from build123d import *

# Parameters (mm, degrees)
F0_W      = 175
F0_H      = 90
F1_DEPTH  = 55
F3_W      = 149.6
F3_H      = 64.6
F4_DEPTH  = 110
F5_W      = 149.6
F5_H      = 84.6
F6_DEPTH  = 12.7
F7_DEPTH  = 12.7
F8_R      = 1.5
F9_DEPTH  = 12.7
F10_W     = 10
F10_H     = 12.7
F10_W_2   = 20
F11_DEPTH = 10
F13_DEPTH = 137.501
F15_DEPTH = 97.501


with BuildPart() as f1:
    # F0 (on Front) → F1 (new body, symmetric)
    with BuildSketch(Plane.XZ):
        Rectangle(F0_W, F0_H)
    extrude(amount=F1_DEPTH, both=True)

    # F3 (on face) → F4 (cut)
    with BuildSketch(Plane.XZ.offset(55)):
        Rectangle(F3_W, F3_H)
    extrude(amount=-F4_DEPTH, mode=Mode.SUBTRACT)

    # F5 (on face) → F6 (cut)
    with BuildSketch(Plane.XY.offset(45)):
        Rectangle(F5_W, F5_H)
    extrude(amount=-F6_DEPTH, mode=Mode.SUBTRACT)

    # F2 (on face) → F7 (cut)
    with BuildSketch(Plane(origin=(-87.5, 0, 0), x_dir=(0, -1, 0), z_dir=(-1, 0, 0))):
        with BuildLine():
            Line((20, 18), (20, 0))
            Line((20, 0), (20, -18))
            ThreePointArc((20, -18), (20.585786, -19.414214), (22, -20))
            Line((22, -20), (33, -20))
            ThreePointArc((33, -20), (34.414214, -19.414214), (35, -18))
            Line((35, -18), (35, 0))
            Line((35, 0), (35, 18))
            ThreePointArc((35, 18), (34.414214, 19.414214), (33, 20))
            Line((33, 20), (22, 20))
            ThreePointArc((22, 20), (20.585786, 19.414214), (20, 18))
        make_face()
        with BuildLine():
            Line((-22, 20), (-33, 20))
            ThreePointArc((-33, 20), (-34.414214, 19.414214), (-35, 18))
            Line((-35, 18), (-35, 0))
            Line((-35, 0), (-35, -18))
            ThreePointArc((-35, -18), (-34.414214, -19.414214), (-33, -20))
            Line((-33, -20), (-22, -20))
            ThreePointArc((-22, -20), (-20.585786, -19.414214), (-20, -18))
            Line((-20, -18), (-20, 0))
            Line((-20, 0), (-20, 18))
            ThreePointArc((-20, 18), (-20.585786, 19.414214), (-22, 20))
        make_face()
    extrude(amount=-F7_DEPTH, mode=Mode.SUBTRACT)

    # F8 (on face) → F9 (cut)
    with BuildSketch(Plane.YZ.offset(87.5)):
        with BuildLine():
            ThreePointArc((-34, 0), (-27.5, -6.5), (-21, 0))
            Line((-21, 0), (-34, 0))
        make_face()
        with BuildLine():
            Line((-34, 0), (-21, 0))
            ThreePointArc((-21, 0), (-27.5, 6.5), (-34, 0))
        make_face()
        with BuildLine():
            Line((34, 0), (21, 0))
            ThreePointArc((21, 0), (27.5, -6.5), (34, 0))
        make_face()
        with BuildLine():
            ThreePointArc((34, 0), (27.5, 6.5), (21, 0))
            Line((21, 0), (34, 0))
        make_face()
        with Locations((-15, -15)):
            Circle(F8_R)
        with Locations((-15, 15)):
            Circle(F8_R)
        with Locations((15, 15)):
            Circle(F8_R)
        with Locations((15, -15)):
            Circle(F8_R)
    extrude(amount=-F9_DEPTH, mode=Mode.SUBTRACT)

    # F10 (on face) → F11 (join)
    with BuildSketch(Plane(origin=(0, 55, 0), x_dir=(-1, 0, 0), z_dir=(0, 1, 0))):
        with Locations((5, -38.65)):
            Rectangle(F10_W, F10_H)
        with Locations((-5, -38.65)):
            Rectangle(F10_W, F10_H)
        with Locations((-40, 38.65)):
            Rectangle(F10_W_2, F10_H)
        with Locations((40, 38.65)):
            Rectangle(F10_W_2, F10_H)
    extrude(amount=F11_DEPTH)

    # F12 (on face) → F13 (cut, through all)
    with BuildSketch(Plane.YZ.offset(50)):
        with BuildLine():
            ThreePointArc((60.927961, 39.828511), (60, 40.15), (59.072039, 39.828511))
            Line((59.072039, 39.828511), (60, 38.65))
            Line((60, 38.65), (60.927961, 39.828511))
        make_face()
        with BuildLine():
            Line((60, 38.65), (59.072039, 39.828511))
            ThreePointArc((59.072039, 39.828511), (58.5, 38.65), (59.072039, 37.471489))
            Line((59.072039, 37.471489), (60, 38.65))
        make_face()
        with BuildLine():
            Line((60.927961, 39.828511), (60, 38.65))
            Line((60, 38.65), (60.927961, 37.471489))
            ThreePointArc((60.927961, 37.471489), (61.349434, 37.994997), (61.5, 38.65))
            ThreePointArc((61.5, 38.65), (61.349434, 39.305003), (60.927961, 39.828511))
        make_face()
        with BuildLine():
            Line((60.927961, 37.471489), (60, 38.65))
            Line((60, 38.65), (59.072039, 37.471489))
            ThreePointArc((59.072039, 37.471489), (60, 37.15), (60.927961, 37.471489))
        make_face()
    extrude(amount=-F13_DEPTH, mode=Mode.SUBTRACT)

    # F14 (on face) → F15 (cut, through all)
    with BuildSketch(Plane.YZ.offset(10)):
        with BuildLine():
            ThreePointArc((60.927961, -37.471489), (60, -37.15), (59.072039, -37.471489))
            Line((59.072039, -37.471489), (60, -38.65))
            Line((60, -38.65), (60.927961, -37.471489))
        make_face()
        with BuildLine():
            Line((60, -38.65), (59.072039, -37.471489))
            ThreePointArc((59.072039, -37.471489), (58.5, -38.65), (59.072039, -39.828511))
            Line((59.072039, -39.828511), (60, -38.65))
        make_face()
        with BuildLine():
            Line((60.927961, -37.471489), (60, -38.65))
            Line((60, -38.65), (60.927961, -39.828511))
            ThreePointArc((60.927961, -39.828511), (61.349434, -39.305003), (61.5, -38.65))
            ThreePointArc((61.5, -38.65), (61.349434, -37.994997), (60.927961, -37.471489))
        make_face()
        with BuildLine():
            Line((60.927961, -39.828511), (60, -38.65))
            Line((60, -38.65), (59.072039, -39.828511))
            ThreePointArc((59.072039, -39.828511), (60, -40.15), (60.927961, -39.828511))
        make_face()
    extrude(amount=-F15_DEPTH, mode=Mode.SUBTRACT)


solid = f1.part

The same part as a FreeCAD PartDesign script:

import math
import FreeCAD as App
import Part
import Sketcher

V = App.Vector


def add_polygon(sketch, points):
    """Adds a closed chain of lines whose ends are joined by coincident constraints."""
    first, n = sketch.GeometryCount, len(points)
    for a, b in zip(points, points[1:] + points[:1]):
        sketch.addGeometry(Part.LineSegment(App.Vector(*a, 0), App.Vector(*b, 0)), False)
    for i in range(n):
        sketch.addConstraint(Sketcher.Constraint("Coincident", first + i, 2, first + (i + 1) % n, 1))

doc = App.newDocument("Part")
body = doc.addObject("PartDesign::Body", "Body")

sketch1 = body.newObject("Sketcher::SketchObject", "Sketch")
sketch1.AttachmentSupport = (doc.getObject("XZ_Plane"), [""])
sketch1.MapMode = "FlatFace"
add_polygon(sketch1, [(-88, 45), (-88, -45), (88, -45), (88, 45)])
sketch1.addConstraint([
    Sketcher.Constraint("Vertical", 0),
    Sketcher.Constraint("Horizontal", 1),
    Sketcher.Constraint("Vertical", 2),
    Sketcher.Constraint("Horizontal", 3),
    Sketcher.Constraint("Symmetric", 0, 2, 2, 2, -1, 1),
    Sketcher.Constraint("DistanceX", 1, 1, 1, 2, 175.0),
    Sketcher.Constraint("DistanceY", 0, 2, 0, 1, 90.0),
])
pad1 = body.newObject("PartDesign::Pad", "Pad")
pad1.Profile = sketch1
pad1.Length = 110
pad1.Midplane = True

sketch2 = body.newObject("Sketcher::SketchObject", "Sketch001")
sketch2.AttachmentSupport = (doc.getObject("XZ_Plane"), [""])
sketch2.MapMode = "FlatFace"
sketch2.AttachmentOffset = App.Placement(V(0, 0, 55), App.Rotation())
add_polygon(sketch2, [(-75, 32), (-75, -32), (75, -32), (75, 32)])
sketch2.addConstraint([
    Sketcher.Constraint("Vertical", 0),
    Sketcher.Constraint("Horizontal", 1),
    Sketcher.Constraint("Vertical", 2),
    Sketcher.Constraint("Horizontal", 3),
    Sketcher.Constraint("Symmetric", 0, 2, 2, 2, -1, 1),
    Sketcher.Constraint("DistanceX", 1, 1, 1, 2, 149.6),
    Sketcher.Constraint("DistanceY", 0, 2, 0, 1, 64.6),
])
pocket1 = body.newObject("PartDesign::Pocket", "Pocket")
pocket1.Profile = sketch2
pocket1.Length = 110

sketch3 = body.newObject("Sketcher::SketchObject", "Sketch002")
sketch3.AttachmentSupport = (doc.getObject("XY_Plane"), [""])
sketch3.MapMode = "FlatFace"
sketch3.AttachmentOffset = App.Placement(V(0, 0, 45), App.Rotation())
add_polygon(sketch3, [(-75, 42), (-75, -42), (75, -42), (75, 42)])
sketch3.addConstraint([
    Sketcher.Constraint("Vertical", 0),
    Sketcher.Constraint("Horizontal", 1),
    Sketcher.Constraint("Vertical", 2),
    Sketcher.Constraint("Horizontal", 3),
    Sketcher.Constraint("Symmetric", 0, 2, 2, 2, -1, 1),
    Sketcher.Constraint("DistanceX", 1, 1, 1, 2, 149.6),
    Sketcher.Constraint("DistanceY", 0, 2, 0, 1, 84.6),
])
pocket2 = body.newObject("PartDesign::Pocket", "Pocket001")
pocket2.Profile = sketch3
pocket2.Length = 12.7

sketch4 = body.newObject("Sketcher::SketchObject", "Sketch003")
sketch4.AttachmentSupport = (doc.getObject("YZ_Plane"), [""])
sketch4.MapMode = "FlatFace"
sketch4.AttachmentOffset = App.Placement(V(0, 0, -87.5), App.Rotation())
sketch4.addGeometry([
    Part.LineSegment(V(-20, 18, 0), V(-20, -18, 0)),
    Part.ArcOfCircle(Part.Circle(V(-22, -18, 0), V(0, 0, 1), 2), math.radians(-90), math.radians(0)),
    Part.LineSegment(V(-22, -20, 0), V(-33, -20, 0)),
    Part.ArcOfCircle(Part.Circle(V(-33, -18, 0), V(0, 0, 1), 2), math.radians(180), math.radians(270)),
    Part.LineSegment(V(-35, -18, 0), V(-35, 18, 0)),
    Part.ArcOfCircle(Part.Circle(V(-33, 18, 0), V(0, 0, 1), 2), math.radians(90), math.radians(180)),
    Part.LineSegment(V(-33, 20, 0), V(-22, 20, 0)),
    Part.ArcOfCircle(Part.Circle(V(-22, 18, 0), V(0, 0, 1), 2), math.radians(0), math.radians(90)),
    Part.LineSegment(V(22, 20, 0), V(33, 20, 0)),
    Part.ArcOfCircle(Part.Circle(V(33, 18, 0), V(0, 0, 1), 2), math.radians(0), math.radians(90)),
    Part.LineSegment(V(35, 18, 0), V(35, -18, 0)),
    Part.ArcOfCircle(Part.Circle(V(33, -18, 0), V(0, 0, 1), 2), math.radians(-90), math.radians(0)),
    Part.LineSegment(V(33, -20, 0), V(22, -20, 0)),
    Part.ArcOfCircle(Part.Circle(V(22, -18, 0), V(0, 0, 1), 2), math.radians(180), math.radians(270)),
    Part.LineSegment(V(20, -18, 0), V(20, 18, 0)),
    Part.ArcOfCircle(Part.Circle(V(22, 18, 0), V(0, 0, 1), 2), math.radians(90), math.radians(180)),
], False)
sketch4.addConstraint([
    Sketcher.Constraint("Tangent", 0, 2, 1, 2),
    Sketcher.Constraint("Tangent", 1, 1, 2, 1),
    Sketcher.Constraint("Tangent", 2, 2, 3, 2),
    Sketcher.Constraint("Tangent", 3, 1, 4, 1),
    Sketcher.Constraint("Tangent", 4, 2, 5, 2),
    Sketcher.Constraint("Tangent", 5, 1, 6, 1),
    Sketcher.Constraint("Tangent", 6, 2, 7, 2),
    Sketcher.Constraint("Tangent", 7, 1, 0, 1),
    Sketcher.Constraint("Tangent", 8, 2, 9, 2),
    Sketcher.Constraint("Tangent", 9, 1, 10, 1),
    Sketcher.Constraint("Tangent", 10, 2, 11, 2),
    Sketcher.Constraint("Tangent", 11, 1, 12, 1),
    Sketcher.Constraint("Tangent", 12, 2, 13, 2),
    Sketcher.Constraint("Tangent", 13, 1, 14, 1),
    Sketcher.Constraint("Tangent", 14, 2, 15, 2),
    Sketcher.Constraint("Tangent", 15, 1, 8, 1),
    Sketcher.Constraint("Vertical", 0),
    Sketcher.Constraint("Horizontal", 2),
    Sketcher.Constraint("Vertical", 4),
    Sketcher.Constraint("Horizontal", 6),
    Sketcher.Constraint("Horizontal", 8),
    Sketcher.Constraint("Vertical", 10),
    Sketcher.Constraint("Horizontal", 12),
    Sketcher.Constraint("Vertical", 14),
    Sketcher.Constraint("Equal", 1, 3),
    Sketcher.Constraint("Equal", 3, 5),
    Sketcher.Constraint("Equal", 5, 7),
    Sketcher.Constraint("Equal", 7, 9),
    Sketcher.Constraint("Equal", 9, 11),
    Sketcher.Constraint("Equal", 11, 13),
    Sketcher.Constraint("Equal", 13, 15),
    Sketcher.Constraint("Symmetric", 3, 3, 9, 3, -1, 1),
    Sketcher.Constraint("Symmetric", 7, 3, 13, 3, -1, 1),
    Sketcher.Constraint("Horizontal", 7, 3, 9, 3),
    Sketcher.Constraint("Radius", 1, 1.999999),
    Sketcher.Constraint("DistanceX", 2, 2, 2, 1, 11.0),
    Sketcher.Constraint("DistanceY", 0, 2, 0, 1, 36.0),
    Sketcher.Constraint("DistanceX", 1, 3, -1, 1, 21.999999),
])
pocket3 = body.newObject("PartDesign::Pocket", "Pocket002")
pocket3.Profile = sketch4
pocket3.Length = 12.7
pocket3.Reversed = True

sketch5 = body.newObject("Sketcher::SketchObject", "Sketch004")
sketch5.AttachmentSupport = (doc.getObject("YZ_Plane"), [""])
sketch5.MapMode = "FlatFace"
sketch5.AttachmentOffset = App.Placement(V(0, 0, 87.5), App.Rotation())
sketch5.addGeometry([
    Part.Circle(V(-27.5, 0, 0), V(0, 0, 1), 6.5),
    Part.Circle(V(27.5, 0, 0), V(0, 0, 1), 6.5),
    Part.Circle(V(-15, -15, 0), V(0, 0, 1), 1.5),
    Part.Circle(V(-15, 15, 0), V(0, 0, 1), 1.5),
    Part.Circle(V(15, 15, 0), V(0, 0, 1), 1.5),
    Part.Circle(V(15, -15, 0), V(0, 0, 1), 1.5),
], False)
sketch5.addConstraint([
    Sketcher.Constraint("Equal", 0, 1),
    Sketcher.Constraint("Equal", 2, 3),
    Sketcher.Constraint("Equal", 3, 4),
    Sketcher.Constraint("Equal", 4, 5),
    Sketcher.Constraint("Symmetric", 0, 3, 1, 3, -1, 1),
    Sketcher.Constraint("Symmetric", 2, 3, 4, 3, -1, 1),
    Sketcher.Constraint("Symmetric", 3, 3, 5, 3, -1, 1),
    Sketcher.Constraint("Symmetric", 3, 3, 4, 3, -2),
    Sketcher.Constraint("PointOnObject", 0, 3, -1),
    Sketcher.Constraint("Diameter", 0, 13.0),
    Sketcher.Constraint("Diameter", 2, 3.0),
    Sketcher.Constraint("DistanceX", 2, 3, -1, 1, 15.0),
    Sketcher.Constraint("DistanceY", 2, 3, -1, 1, 15.0),
    Sketcher.Constraint("DistanceX", 0, 3, 1, 3, 55.0),
])
pocket4 = body.newObject("PartDesign::Pocket", "Pocket003")
pocket4.Profile = sketch5
pocket4.Length = 12.7

sketch6 = body.newObject("Sketcher::SketchObject", "Sketch005")
sketch6.AttachmentSupport = (doc.getObject("XZ_Plane"), [""])
sketch6.MapMode = "FlatFace"
sketch6.AttachmentOffset = App.Placement(V(0, 0, -55), App.Rotation())
add_polygon(sketch6, [(-10, -45), (-10, -32), (10, -32), (10, -45)])
add_polygon(sketch6, [(50, 45), (50, 32), (30, 32), (30, 45)])
add_polygon(sketch6, [(-30, 45), (-30, 32), (-50, 32), (-50, 45)])
sketch6.addConstraint([
    Sketcher.Constraint("Vertical", 0),
    Sketcher.Constraint("Horizontal", 1),
    Sketcher.Constraint("Vertical", 2),
    Sketcher.Constraint("Horizontal", 3),
    Sketcher.Constraint("Vertical", 4),
    Sketcher.Constraint("Horizontal", 5),
    Sketcher.Constraint("Vertical", 6),
    Sketcher.Constraint("Horizontal", 7),
    Sketcher.Constraint("Vertical", 8),
    Sketcher.Constraint("Horizontal", 9),
    Sketcher.Constraint("Vertical", 10),
    Sketcher.Constraint("Horizontal", 11),
    Sketcher.Constraint("Symmetric", 5, 2, 8, 2, -2),
    Sketcher.Constraint("Symmetric", 7, 2, 10, 2, -2),
    Sketcher.Constraint("Equal", 3, 5),
    Sketcher.Constraint("Equal", 2, 4),
    Sketcher.Constraint("DistanceX", 1, 1, 1, 2, 20.0),
    Sketcher.Constraint("DistanceY", 0, 1, 0, 2, 12.7),
    Sketcher.Constraint("DistanceX", 0, 2, -1, 1, 10.0),
    Sketcher.Constraint("DistanceY", 2, 2, -1, 1, 45.0),
    Sketcher.Constraint("DistanceX", -1, 1, 4, 2, 50.0),
    Sketcher.Constraint("DistanceY", -1, 1, 6, 2, 45.0),
])
pad2 = body.newObject("PartDesign::Pad", "Pad001")
pad2.Profile = sketch6
pad2.Length = 10
pad2.Reversed = True

sketch7 = body.newObject("Sketcher::SketchObject", "Sketch006")
sketch7.AttachmentSupport = (doc.getObject("YZ_Plane"), [""])
sketch7.MapMode = "FlatFace"
sketch7.AttachmentOffset = App.Placement(V(0, 0, 50), App.Rotation())
sketch7.addGeometry([
    Part.ArcOfCircle(Part.Circle(V(60, 38.7, 0), V(0, 0, 1), 1.5), math.radians(52), math.radians(128)),
    Part.ArcOfCircle(Part.Circle(V(60, 38.6, 0), V(0, 0, 1), 1.5), math.radians(128), math.radians(232)),
    Part.ArcOfCircle(Part.Circle(V(60, 38.6, 0), V(0, 0, 1), 1.5), math.radians(-128), math.radians(-52)),
    Part.ArcOfCircle(Part.Circle(V(60, 38.6, 0), V(0, 0, 1), 1.5), math.radians(-52), math.radians(0)),
    Part.ArcOfCircle(Part.Circle(V(60, 38.7, 0), V(0, 0, 1), 1.5), math.radians(0), math.radians(52)),
], False)
sketch7.addConstraint([
    Sketcher.Constraint("Tangent", 0, 2, 1, 1),
    Sketcher.Constraint("Tangent", 1, 2, 2, 1),
    Sketcher.Constraint("Tangent", 2, 2, 3, 1),
    Sketcher.Constraint("Coincident", 3, 2, 4, 1),
    Sketcher.Constraint("Tangent", 4, 2, 0, 1),
    Sketcher.Constraint("Coincident", 2, 3, 0, 3),
    Sketcher.Constraint("Horizontal", 1, 2, 2, 2),
    Sketcher.Constraint("Horizontal", 4, 3, 3, 2),
    Sketcher.Constraint("Horizontal", 0, 2, 4, 2),
    Sketcher.Constraint("Vertical", 0, 2, 1, 2),
    Sketcher.Constraint("Radius", 0, 1.5),
    Sketcher.Constraint("DistanceX", -1, 1, 0, 3, 60.0),
    Sketcher.Constraint("DistanceX", -1, 1, 3, 2, 61.5),
    Sketcher.Constraint("DistanceY", -1, 1, 0, 3, 38.65),
    Sketcher.Constraint("DistanceX", -1, 1, 0, 2, 59.072039),
])
pocket5 = body.newObject("PartDesign::Pocket", "Pocket004")
pocket5.Profile = sketch7
pocket5.Type = "ThroughAll"

sketch8 = body.newObject("Sketcher::SketchObject", "Sketch007")
sketch8.AttachmentSupport = (doc.getObject("YZ_Plane"), [""])
sketch8.MapMode = "FlatFace"
sketch8.AttachmentOffset = App.Placement(V(0, 0, 10), App.Rotation())
sketch8.addGeometry([
    Part.ArcOfCircle(Part.Circle(V(60, -38.6, 0), V(0, 0, 1), 1.5), math.radians(52), math.radians(128)),
    Part.ArcOfCircle(Part.Circle(V(60, -38.6, 0), V(0, 0, 1), 1.5), math.radians(128), math.radians(232)),
    Part.ArcOfCircle(Part.Circle(V(60, -38.7, 0), V(0, 0, 1), 1.5), math.radians(-128), math.radians(-52)),
    Part.ArcOfCircle(Part.Circle(V(60, -38.7, 0), V(0, 0, 1), 1.5), math.radians(-52), math.radians(0)),
    Part.ArcOfCircle(Part.Circle(V(60, -38.6, 0), V(0, 0, 1), 1.5), math.radians(0), math.radians(52)),
], False)
sketch8.addConstraint([
    Sketcher.Constraint("Tangent", 0, 2, 1, 1),
    Sketcher.Constraint("Tangent", 1, 2, 2, 1),
    Sketcher.Constraint("Tangent", 2, 2, 3, 1),
    Sketcher.Constraint("Coincident", 3, 2, 4, 1),
    Sketcher.Constraint("Tangent", 4, 2, 0, 1),
    Sketcher.Constraint("Coincident", 2, 3, 0, 3),
    Sketcher.Constraint("Horizontal", 1, 2, 2, 2),
    Sketcher.Constraint("Horizontal", 4, 3, 3, 2),
    Sketcher.Constraint("Horizontal", 0, 2, 4, 2),
    Sketcher.Constraint("Vertical", 0, 2, 1, 2),
    Sketcher.Constraint("Radius", 0, 1.5),
    Sketcher.Constraint("DistanceX", -1, 1, 0, 3, 60.0),
    Sketcher.Constraint("DistanceX", -1, 1, 3, 2, 61.5),
    Sketcher.Constraint("DistanceY", 0, 3, -1, 1, 38.65),
    Sketcher.Constraint("DistanceX", -1, 1, 0, 2, 59.072039),
])
pocket6 = body.newObject("PartDesign::Pocket", "Pocket005")
pocket6.Profile = sketch8
pocket6.Type = "ThroughAll"

doc.recompute()
